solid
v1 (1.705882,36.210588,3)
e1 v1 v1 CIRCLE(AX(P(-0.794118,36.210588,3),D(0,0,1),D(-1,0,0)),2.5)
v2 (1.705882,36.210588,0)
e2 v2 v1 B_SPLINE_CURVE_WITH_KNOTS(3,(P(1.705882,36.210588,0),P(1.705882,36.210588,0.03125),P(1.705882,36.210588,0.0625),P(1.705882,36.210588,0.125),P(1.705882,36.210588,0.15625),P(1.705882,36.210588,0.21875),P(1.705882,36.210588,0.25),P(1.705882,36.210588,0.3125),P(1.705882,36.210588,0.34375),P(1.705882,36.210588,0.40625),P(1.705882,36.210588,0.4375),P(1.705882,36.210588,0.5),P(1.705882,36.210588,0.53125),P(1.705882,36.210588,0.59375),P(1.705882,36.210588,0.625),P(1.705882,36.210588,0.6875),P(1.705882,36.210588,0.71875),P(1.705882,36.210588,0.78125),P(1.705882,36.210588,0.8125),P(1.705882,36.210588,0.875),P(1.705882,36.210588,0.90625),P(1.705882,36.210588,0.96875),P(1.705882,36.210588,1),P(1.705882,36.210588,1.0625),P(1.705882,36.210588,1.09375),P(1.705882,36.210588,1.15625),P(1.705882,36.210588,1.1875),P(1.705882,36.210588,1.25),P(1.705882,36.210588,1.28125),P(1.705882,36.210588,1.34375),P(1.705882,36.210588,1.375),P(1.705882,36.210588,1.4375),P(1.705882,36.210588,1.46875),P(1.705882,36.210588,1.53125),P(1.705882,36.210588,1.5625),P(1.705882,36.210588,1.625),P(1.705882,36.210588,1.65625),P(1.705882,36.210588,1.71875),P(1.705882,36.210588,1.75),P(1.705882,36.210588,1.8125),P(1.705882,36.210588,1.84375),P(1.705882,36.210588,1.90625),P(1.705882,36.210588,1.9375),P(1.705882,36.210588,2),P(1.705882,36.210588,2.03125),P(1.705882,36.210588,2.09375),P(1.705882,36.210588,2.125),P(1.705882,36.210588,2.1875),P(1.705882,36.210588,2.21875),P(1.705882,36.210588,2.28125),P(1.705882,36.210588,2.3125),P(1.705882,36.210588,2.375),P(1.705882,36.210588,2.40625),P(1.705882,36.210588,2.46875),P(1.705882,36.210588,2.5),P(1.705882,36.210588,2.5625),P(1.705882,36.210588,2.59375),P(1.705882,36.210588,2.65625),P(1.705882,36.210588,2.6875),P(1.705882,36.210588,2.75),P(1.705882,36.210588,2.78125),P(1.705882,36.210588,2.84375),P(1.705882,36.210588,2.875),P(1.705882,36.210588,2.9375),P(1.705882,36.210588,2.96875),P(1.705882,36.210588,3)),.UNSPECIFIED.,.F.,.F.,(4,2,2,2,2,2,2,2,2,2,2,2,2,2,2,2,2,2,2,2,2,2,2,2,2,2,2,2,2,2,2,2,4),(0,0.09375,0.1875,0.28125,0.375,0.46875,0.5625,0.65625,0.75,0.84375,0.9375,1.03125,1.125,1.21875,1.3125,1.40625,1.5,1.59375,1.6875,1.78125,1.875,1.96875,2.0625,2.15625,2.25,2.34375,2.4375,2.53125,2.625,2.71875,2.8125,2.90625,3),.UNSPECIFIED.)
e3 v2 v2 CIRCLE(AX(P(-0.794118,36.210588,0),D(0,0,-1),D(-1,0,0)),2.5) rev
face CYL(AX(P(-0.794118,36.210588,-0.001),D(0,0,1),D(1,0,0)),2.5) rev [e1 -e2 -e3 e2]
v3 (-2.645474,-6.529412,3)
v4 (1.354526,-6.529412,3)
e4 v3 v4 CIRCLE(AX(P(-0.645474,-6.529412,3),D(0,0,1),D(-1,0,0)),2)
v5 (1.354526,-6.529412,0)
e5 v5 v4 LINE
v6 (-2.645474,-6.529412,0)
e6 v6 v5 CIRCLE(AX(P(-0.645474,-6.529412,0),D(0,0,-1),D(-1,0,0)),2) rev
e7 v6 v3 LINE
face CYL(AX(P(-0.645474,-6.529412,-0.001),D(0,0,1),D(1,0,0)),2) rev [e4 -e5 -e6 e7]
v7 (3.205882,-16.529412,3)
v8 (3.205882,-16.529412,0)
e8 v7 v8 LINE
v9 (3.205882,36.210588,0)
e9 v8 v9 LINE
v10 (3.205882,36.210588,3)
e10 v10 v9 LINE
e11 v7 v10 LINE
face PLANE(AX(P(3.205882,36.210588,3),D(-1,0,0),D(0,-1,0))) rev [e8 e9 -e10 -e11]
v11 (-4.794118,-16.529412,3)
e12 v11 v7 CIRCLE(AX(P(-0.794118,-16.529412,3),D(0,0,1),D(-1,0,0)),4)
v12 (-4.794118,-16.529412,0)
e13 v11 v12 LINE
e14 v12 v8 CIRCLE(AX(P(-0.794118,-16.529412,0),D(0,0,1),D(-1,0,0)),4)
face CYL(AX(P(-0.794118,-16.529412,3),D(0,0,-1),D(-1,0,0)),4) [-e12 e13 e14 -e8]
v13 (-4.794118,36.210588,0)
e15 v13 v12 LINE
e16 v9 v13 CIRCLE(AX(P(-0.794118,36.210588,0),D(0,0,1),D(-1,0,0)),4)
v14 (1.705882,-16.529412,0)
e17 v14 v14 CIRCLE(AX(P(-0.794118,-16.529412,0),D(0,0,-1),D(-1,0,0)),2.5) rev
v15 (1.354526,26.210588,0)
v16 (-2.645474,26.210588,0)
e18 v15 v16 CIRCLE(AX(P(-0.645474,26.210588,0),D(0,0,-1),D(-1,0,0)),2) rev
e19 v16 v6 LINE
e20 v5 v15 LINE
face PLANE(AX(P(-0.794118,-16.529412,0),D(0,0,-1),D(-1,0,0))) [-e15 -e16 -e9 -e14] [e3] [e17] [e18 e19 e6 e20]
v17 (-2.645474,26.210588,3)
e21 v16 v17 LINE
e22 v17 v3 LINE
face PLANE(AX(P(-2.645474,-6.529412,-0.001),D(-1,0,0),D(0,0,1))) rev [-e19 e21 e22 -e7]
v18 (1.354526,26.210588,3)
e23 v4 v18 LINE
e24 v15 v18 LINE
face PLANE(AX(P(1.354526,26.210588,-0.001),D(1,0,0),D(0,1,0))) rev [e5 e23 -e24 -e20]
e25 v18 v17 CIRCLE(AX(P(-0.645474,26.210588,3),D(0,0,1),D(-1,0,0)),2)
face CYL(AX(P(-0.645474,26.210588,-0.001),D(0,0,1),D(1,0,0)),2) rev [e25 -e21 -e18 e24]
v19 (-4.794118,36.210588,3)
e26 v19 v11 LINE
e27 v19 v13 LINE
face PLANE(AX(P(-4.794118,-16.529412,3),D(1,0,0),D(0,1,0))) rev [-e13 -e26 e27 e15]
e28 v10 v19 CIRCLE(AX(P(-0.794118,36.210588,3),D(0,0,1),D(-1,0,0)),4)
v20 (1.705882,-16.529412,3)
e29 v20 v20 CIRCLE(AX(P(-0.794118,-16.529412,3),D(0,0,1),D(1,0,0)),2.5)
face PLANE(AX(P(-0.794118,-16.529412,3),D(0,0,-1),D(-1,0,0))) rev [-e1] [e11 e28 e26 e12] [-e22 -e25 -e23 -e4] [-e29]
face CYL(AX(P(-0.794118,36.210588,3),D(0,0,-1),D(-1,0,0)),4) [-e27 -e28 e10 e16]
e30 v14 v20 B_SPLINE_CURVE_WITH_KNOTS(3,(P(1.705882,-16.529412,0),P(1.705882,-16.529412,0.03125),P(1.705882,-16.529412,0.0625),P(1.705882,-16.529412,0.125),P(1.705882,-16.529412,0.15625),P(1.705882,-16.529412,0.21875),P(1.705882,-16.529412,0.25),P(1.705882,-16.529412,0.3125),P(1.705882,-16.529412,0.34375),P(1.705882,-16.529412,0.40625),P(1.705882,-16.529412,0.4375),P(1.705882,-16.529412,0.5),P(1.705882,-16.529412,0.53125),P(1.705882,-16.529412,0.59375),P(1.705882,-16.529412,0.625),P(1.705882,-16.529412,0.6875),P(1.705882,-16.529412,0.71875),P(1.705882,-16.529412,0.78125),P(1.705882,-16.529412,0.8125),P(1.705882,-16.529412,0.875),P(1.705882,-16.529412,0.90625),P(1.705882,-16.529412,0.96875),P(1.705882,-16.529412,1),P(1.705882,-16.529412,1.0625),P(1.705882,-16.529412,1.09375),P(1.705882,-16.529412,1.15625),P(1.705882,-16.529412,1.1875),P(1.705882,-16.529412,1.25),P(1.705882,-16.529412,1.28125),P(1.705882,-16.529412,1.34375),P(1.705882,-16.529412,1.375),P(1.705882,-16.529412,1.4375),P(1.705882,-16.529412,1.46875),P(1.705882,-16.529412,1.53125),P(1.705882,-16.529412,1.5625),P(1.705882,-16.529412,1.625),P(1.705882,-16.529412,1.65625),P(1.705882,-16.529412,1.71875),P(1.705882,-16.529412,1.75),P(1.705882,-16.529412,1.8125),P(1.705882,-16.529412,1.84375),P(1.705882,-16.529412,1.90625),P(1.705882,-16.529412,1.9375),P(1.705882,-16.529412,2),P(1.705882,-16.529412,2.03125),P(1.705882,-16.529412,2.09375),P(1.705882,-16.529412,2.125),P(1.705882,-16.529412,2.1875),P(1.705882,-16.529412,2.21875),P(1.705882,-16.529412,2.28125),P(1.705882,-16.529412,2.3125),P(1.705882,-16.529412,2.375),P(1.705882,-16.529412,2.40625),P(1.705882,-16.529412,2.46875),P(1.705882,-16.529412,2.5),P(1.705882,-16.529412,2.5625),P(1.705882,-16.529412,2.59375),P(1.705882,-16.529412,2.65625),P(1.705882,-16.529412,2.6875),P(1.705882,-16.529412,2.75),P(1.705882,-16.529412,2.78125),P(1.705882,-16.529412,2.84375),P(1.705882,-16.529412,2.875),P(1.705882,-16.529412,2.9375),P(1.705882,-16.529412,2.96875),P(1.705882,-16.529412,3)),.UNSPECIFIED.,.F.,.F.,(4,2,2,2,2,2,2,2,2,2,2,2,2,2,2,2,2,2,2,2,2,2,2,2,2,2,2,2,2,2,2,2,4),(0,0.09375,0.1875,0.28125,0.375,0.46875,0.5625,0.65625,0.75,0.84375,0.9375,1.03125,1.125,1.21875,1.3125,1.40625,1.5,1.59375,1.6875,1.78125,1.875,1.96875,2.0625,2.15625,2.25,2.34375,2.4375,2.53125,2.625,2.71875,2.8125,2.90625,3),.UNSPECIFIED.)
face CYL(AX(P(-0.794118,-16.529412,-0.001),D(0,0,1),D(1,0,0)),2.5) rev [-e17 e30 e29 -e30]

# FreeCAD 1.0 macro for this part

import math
import FreeCAD as App
import Part
import Sketcher
Q = App.Units.Quantity

doc = App.newDocument("Part")
params = doc.addObject("Spreadsheet::Sheet", "Params")
for row, (alias, value) in enumerate([
    ("sketch1_radius", "4 mm"),
    ("sketch1_height", "52.74 mm"),
    ("pad1_length", "3 mm"),
    ("sketch2_diameter", "5 mm"),
    ("sketch3_diameter", "5 mm"),
    ("sketch4_radius", "2 mm"),
    ("sketch4_height", "32.74 mm"),
], start=1):
    params.set(f"A{row}", alias)
    params.set(f"B{row}", "=" + value)
    params.setAlias(f"B{row}", alias)

body = doc.addObject("PartDesign::Body", "Body")

sketch1 = doc.addObject("Sketcher::SketchObject", "Sketch")
body.addObject(sketch1)
sketch1.AttachmentSupport = (doc.XY_Plane, [""])
sketch1.MapMode = "FlatFace"
sketch1.addGeometry(Part.LineSegment(App.Vector(-4.8, 36.2, 0), App.Vector(-4.8, -16.5, 0)), False)
sketch1.addGeometry(Part.ArcOfCircle(Part.Circle(App.Vector(-0.8, -16.5, 0), App.Vector(0, 0, 1), 4), math.radians(180), math.radians(360)), False)
sketch1.addGeometry(Part.LineSegment(App.Vector(3.2, -16.5, 0), App.Vector(3.2, 36.2, 0)), False)
sketch1.addGeometry(Part.ArcOfCircle(Part.Circle(App.Vector(-0.8, 36.2, 0), App.Vector(0, 0, 1), 4), math.radians(0), math.radians(180)), False)
sketch1.addConstraint(Sketcher.Constraint("Tangent", 0, 2, 1, 1))
sketch1.addConstraint(Sketcher.Constraint("Tangent", 1, 2, 2, 1))
sketch1.addConstraint(Sketcher.Constraint("Tangent", 2, 2, 3, 1))
sketch1.addConstraint(Sketcher.Constraint("Tangent", 3, 2, 0, 1))
sketch1.addConstraint(Sketcher.Constraint("Vertical", 0))
sketch1.addConstraint(Sketcher.Constraint("Vertical", 2))
sketch1.addConstraint(Sketcher.Constraint("Radius", 1, Q("4 mm")))
sketch1.addConstraint(Sketcher.Constraint("DistanceY", 0, 2, 0, 1, Q("52.74 mm")))
sketch1.addConstraint(Sketcher.Constraint("DistanceY", 1, 3, -1, 1, Q("16.529412 mm")))
sketch1.addConstraint(Sketcher.Constraint("DistanceX", 1, 3, -1, 1, Q("0.794118 mm")))
sketch1.setExpression("Constraints[6]", "Params.sketch1_radius")
sketch1.setExpression("Constraints[7]", "Params.sketch1_height")
pad1 = doc.addObject("PartDesign::Pad", "Pad")
body.addObject(pad1)
pad1.Profile = sketch1
pad1.setExpression("Length", "Params.pad1_length")

sketch2 = doc.addObject("Sketcher::SketchObject", "Sketch001")
body.addObject(sketch2)
sketch2.AttachmentSupport = (doc.XY_Plane, [""])
sketch2.MapMode = "FlatFace"
sketch2.AttachmentOffset = App.Placement(App.Vector(0, 0, 3), App.Rotation())
sketch2.addGeometry(Part.Circle(App.Vector(-0.8, -16.5, 0), App.Vector(0, 0, 1), 2.5), False)
sketch2.addConstraint(Sketcher.Constraint("Diameter", 0, Q("5 mm")))
sketch2.addConstraint(Sketcher.Constraint("DistanceY", 0, 3, -1, 1, Q("16.529412 mm")))
sketch2.addConstraint(Sketcher.Constraint("DistanceX", 0, 3, -1, 1, Q("0.794118 mm")))
sketch2.setExpression("Constraints[0]", "Params.sketch2_diameter")
pocket1 = doc.addObject("PartDesign::Pocket", "Pocket")
body.addObject(pocket1)
pocket1.Profile = sketch2
pocket1.Type = "UpToFirst"

sketch3 = doc.addObject("Sketcher::SketchObject", "Sketch002")
body.addObject(sketch3)
sketch3.AttachmentSupport = (doc.XY_Plane, [""])
sketch3.MapMode = "FlatFace"
sketch3.AttachmentOffset = App.Placement(App.Vector(0, 0, 3), App.Rotation())
sketch3.addGeometry(Part.Circle(App.Vector(-0.8, 36.2, 0), App.Vector(0, 0, 1), 2.5), False)
sketch3.addConstraint(Sketcher.Constraint("Diameter", 0, Q("5 mm")))
sketch3.addConstraint(Sketcher.Constraint("DistanceY", -1, 1, 0, 3, Q("36.210588 mm")))
sketch3.addConstraint(Sketcher.Constraint("DistanceX", 0, 3, -1, 1, Q("0.794118 mm")))
sketch3.setExpression("Constraints[0]", "Params.sketch3_diameter")
pocket2 = doc.addObject("PartDesign::Pocket", "Pocket001")
body.addObject(pocket2)
pocket2.Profile = sketch3
pocket2.Type = "UpToFirst"

sketch4 = doc.addObject("Sketcher::SketchObject", "Sketch003")
body.addObject(sketch4)
sketch4.AttachmentSupport = (doc.XY_Plane, [""])
sketch4.MapMode = "FlatFace"
sketch4.AttachmentOffset = App.Placement(App.Vector(0, 0, 3), App.Rotation())
sketch4.addGeometry(Part.LineSegment(App.Vector(-2.6, 26.2, 0), App.Vector(-2.6, -6.5, 0)), False)
sketch4.addGeometry(Part.ArcOfCircle(Part.Circle(App.Vector(-0.6, -6.5, 0), App.Vector(0, 0, 1), 2), math.radians(180), math.radians(360)), False)
sketch4.addGeometry(Part.LineSegment(App.Vector(1.4, -6.5, 0), App.Vector(1.4, 26.2, 0)), False)
sketch4.addGeometry(Part.ArcOfCircle(Part.Circle(App.Vector(-0.6, 26.2, 0), App.Vector(0, 0, 1), 2), math.radians(0), math.radians(180)), False)
sketch4.addConstraint(Sketcher.Constraint("Tangent", 0, 2, 1, 1))
sketch4.addConstraint(Sketcher.Constraint("Tangent", 1, 2, 2, 1))
sketch4.addConstraint(Sketcher.Constraint("Tangent", 2, 2, 3, 1))
sketch4.addConstraint(Sketcher.Constraint("Tangent", 3, 2, 0, 1))
sketch4.addConstraint(Sketcher.Constraint("Vertical", 0))
sketch4.addConstraint(Sketcher.Constraint("Vertical", 2))
sketch4.addConstraint(Sketcher.Constraint("Radius", 1, Q("2 mm")))
sketch4.addConstraint(Sketcher.Constraint("DistanceY", 0, 2, 0, 1, Q("32.74 mm")))
sketch4.addConstraint(Sketcher.Constraint("DistanceY", 1, 3, -1, 1, Q("6.529412 mm")))
sketch4.addConstraint(Sketcher.Constraint("DistanceX", 1, 3, -1, 1, Q("0.645474 mm")))
sketch4.setExpression("Constraints[6]", "Params.sketch4_radius")
sketch4.setExpression("Constraints[7]", "Params.sketch4_height")
pocket3 = doc.addObject("PartDesign::Pocket", "Pocket002")
body.addObject(pocket3)
pocket3.Profile = sketch4
pocket3.Type = "UpToFirst"

doc.recompute()
